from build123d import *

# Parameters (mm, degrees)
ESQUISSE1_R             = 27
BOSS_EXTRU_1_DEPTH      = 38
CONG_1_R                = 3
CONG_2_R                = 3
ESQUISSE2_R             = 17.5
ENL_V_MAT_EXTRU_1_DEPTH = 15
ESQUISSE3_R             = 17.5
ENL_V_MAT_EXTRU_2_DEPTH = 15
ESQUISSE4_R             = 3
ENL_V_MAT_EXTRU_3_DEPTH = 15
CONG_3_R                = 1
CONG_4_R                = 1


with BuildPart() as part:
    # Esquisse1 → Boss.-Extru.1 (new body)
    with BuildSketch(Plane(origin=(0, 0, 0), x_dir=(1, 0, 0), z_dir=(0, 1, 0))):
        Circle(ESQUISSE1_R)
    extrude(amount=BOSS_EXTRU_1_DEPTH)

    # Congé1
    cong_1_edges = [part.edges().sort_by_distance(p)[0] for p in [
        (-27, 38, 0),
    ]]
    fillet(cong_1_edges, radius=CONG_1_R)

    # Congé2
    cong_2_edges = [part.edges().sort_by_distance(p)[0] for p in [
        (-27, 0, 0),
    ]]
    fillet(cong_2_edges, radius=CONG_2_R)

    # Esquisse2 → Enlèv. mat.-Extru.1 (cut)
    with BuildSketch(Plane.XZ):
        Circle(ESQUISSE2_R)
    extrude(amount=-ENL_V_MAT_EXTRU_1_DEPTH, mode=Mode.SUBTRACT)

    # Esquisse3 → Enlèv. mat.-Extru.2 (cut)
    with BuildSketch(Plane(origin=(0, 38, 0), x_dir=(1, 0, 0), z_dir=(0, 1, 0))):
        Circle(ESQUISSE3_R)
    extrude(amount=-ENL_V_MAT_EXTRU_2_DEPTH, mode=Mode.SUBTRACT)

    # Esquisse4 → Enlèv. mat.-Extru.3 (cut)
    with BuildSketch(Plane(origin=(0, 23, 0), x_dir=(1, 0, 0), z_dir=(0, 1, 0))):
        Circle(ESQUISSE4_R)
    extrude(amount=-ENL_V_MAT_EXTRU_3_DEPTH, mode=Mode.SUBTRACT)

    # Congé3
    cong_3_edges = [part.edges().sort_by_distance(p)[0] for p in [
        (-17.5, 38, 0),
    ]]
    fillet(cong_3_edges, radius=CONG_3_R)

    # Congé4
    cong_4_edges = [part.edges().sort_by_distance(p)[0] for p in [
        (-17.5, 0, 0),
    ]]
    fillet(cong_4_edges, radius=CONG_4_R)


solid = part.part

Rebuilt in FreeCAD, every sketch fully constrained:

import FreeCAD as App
import Part
import Sketcher
from FreeCAD import Vector
Q = App.Units.Quantity


def edges_at(feature, points):
    """Names of the edges that pass closest to the given points."""
    edges = feature.Shape.Edges
    near = lambda p: min(range(len(edges)), key=lambda i: edges[i].distToShape(Part.Vertex(*p))[0])
    return sorted({f"Edge{near(p) + 1}" for p in points})

doc = App.newDocument("Part")
body = doc.addObject("PartDesign::Body", "Body")

# Sketch on XZ plane
sketch1 = body.newObject("Sketcher::SketchObject", "Sketch")
sketch1.AttachmentSupport = (doc.getObject("XZ_Plane"), [""])
sketch1.MapMode = "FlatFace"
sketch1.addGeometry(Part.Circle(Vector(0, 0, 0), Vector(0, 0, 1), 27), False)
sketch1.addConstraint([
    Sketcher.Constraint("Coincident", 0, 3, -1, 1),
    Sketcher.Constraint("Diameter", 0, Q("54 mm")),
])
pad1 = body.newObject("PartDesign::Pad", "Pad")
pad1.Profile = sketch1
pad1.Length = 38
pad1.Reversed = True
doc.recompute()

fillet = body.newObject("PartDesign::Fillet", "Fillet")
fillet.Base = (pad1, edges_at(pad1, [(-27, 38, 0)]))
fillet.Radius = 3
doc.recompute()

fillet2 = body.newObject("PartDesign::Fillet", "Fillet001")
fillet2.Base = (fillet, edges_at(fillet, [(-27, 0, 0)]))
fillet2.Radius = 3

# Sketch on XZ plane
sketch2 = body.newObject("Sketcher::SketchObject", "Sketch001")
sketch2.AttachmentSupport = (doc.getObject("XZ_Plane"), [""])
sketch2.MapMode = "FlatFace"
sketch2.addGeometry(Part.Circle(Vector(0, 0, 0), Vector(0, 0, 1), 18), False)
sketch2.addConstraint([
    Sketcher.Constraint("Coincident", 0, 3, -1, 1),
    Sketcher.Constraint("Diameter", 0, Q("35 mm")),
])
pocket1 = body.newObject("PartDesign::Pocket", "Pocket")
pocket1.Profile = sketch2
pocket1.Length = 15

# Sketch on XZ plane
sketch3 = body.newObject("Sketcher::SketchObject", "Sketch002")
sketch3.AttachmentSupport = (doc.getObject("XZ_Plane"), [""])
sketch3.MapMode = "FlatFace"
sketch3.AttachmentOffset = App.Placement(Vector(0, 0, -38), App.Rotation())
sketch3.addGeometry(Part.Circle(Vector(0, 0, 0), Vector(0, 0, 1), 18), False)
sketch3.addConstraint([
    Sketcher.Constraint("Coincident", 0, 3, -1, 1),
    Sketcher.Constraint("Diameter", 0, Q("35 mm")),
])
pocket2 = body.newObject("PartDesign::Pocket", "Pocket001")
pocket2.Profile = sketch3
pocket2.Length = 15
pocket2.Reversed = True

# Sketch on XZ plane
sketch4 = body.newObject("Sketcher::SketchObject", "Sketch003")
sketch4.AttachmentSupport = (doc.getObject("XZ_Plane"), [""])
sketch4.MapMode = "FlatFace"
sketch4.AttachmentOffset = App.Placement(Vector(0, 0, -23), App.Rotation())
sketch4.addGeometry(Part.Circle(Vector(0, 0, 0), Vector(0, 0, 1), 3), False)
sketch4.addConstraint([
    Sketcher.Constraint("Coincident", 0, 3, -1, 1),
    Sketcher.Constraint("Diameter", 0, Q("6 mm")),
])
pocket3 = body.newObject("PartDesign::Pocket", "Pocket002")
pocket3.Profile = sketch4
pocket3.Length = 15
pocket3.Reversed = True
doc.recompute()

fillet3 = body.newObject("PartDesign::Fillet", "Fillet002")
fillet3.Base = (pocket3, edges_at(pocket3, [(-17.5, 38, 0)]))
fillet3.Radius = 1
doc.recompute()

fillet4 = body.newObject("PartDesign::Fillet", "Fillet003")
fillet4.Base = (fillet3, edges_at(fillet3, [(-17.5, 0, 0)]))
fillet4.Radius = 1

doc.recompute()
